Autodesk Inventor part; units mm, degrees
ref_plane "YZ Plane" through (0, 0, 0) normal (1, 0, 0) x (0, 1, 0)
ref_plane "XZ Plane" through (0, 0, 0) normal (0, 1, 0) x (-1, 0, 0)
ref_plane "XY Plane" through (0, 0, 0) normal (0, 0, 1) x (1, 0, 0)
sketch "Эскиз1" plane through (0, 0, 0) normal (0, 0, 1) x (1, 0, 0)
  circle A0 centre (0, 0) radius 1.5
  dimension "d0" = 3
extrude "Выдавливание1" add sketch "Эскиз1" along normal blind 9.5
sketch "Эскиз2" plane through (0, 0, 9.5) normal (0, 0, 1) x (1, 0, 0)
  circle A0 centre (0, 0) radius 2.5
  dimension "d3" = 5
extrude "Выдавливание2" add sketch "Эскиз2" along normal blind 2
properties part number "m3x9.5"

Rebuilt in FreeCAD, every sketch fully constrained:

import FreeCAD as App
import Part
import Sketcher
from FreeCAD import Vector
Q = App.Units.Quantity

doc = App.newDocument("Part")
body = doc.addObject("PartDesign::Body", "Body")

# Sketch on XY plane
sketch1 = doc.addObject("Sketcher::SketchObject", "Sketch")
body.addObject(sketch1)
sketch1.AttachmentSupport = (doc.XY_Plane, [""])
sketch1.MapMode = "FlatFace"
sketch1.addGeometry(Part.Circle(Vector(0, 0, 0), Vector(0, 0, 1), 1.5), False)
sketch1.addConstraint(Sketcher.Constraint("Coincident", 0, 3, -1, 1))
sketch1.addConstraint(Sketcher.Constraint("Diameter", 0, Q("3 mm")))
pad1 = doc.addObject("PartDesign::Pad", "Pad")
body.addObject(pad1)
pad1.Profile = sketch1
pad1.Length = 9.5

# Sketch on XY plane
sketch2 = doc.addObject("Sketcher::SketchObject", "Sketch001")
body.addObject(sketch2)
sketch2.AttachmentSupport = (doc.XY_Plane, [""])
sketch2.MapMode = "FlatFace"
sketch2.AttachmentOffset = App.Placement(Vector(0, 0, 9.5), App.Rotation())
sketch2.addGeometry(Part.Circle(Vector(0, 0, 0), Vector(0, 0, 1), 2.5), False)
sketch2.addConstraint(Sketcher.Constraint("Coincident", 0, 3, -1, 1))
sketch2.addConstraint(Sketcher.Constraint("Diameter", 0, Q("5 mm")))
pad2 = doc.addObject("PartDesign::Pad", "Pad001")
body.addObject(pad2)
pad2.Profile = sketch2
pad2.Length = 2

doc.recompute()
